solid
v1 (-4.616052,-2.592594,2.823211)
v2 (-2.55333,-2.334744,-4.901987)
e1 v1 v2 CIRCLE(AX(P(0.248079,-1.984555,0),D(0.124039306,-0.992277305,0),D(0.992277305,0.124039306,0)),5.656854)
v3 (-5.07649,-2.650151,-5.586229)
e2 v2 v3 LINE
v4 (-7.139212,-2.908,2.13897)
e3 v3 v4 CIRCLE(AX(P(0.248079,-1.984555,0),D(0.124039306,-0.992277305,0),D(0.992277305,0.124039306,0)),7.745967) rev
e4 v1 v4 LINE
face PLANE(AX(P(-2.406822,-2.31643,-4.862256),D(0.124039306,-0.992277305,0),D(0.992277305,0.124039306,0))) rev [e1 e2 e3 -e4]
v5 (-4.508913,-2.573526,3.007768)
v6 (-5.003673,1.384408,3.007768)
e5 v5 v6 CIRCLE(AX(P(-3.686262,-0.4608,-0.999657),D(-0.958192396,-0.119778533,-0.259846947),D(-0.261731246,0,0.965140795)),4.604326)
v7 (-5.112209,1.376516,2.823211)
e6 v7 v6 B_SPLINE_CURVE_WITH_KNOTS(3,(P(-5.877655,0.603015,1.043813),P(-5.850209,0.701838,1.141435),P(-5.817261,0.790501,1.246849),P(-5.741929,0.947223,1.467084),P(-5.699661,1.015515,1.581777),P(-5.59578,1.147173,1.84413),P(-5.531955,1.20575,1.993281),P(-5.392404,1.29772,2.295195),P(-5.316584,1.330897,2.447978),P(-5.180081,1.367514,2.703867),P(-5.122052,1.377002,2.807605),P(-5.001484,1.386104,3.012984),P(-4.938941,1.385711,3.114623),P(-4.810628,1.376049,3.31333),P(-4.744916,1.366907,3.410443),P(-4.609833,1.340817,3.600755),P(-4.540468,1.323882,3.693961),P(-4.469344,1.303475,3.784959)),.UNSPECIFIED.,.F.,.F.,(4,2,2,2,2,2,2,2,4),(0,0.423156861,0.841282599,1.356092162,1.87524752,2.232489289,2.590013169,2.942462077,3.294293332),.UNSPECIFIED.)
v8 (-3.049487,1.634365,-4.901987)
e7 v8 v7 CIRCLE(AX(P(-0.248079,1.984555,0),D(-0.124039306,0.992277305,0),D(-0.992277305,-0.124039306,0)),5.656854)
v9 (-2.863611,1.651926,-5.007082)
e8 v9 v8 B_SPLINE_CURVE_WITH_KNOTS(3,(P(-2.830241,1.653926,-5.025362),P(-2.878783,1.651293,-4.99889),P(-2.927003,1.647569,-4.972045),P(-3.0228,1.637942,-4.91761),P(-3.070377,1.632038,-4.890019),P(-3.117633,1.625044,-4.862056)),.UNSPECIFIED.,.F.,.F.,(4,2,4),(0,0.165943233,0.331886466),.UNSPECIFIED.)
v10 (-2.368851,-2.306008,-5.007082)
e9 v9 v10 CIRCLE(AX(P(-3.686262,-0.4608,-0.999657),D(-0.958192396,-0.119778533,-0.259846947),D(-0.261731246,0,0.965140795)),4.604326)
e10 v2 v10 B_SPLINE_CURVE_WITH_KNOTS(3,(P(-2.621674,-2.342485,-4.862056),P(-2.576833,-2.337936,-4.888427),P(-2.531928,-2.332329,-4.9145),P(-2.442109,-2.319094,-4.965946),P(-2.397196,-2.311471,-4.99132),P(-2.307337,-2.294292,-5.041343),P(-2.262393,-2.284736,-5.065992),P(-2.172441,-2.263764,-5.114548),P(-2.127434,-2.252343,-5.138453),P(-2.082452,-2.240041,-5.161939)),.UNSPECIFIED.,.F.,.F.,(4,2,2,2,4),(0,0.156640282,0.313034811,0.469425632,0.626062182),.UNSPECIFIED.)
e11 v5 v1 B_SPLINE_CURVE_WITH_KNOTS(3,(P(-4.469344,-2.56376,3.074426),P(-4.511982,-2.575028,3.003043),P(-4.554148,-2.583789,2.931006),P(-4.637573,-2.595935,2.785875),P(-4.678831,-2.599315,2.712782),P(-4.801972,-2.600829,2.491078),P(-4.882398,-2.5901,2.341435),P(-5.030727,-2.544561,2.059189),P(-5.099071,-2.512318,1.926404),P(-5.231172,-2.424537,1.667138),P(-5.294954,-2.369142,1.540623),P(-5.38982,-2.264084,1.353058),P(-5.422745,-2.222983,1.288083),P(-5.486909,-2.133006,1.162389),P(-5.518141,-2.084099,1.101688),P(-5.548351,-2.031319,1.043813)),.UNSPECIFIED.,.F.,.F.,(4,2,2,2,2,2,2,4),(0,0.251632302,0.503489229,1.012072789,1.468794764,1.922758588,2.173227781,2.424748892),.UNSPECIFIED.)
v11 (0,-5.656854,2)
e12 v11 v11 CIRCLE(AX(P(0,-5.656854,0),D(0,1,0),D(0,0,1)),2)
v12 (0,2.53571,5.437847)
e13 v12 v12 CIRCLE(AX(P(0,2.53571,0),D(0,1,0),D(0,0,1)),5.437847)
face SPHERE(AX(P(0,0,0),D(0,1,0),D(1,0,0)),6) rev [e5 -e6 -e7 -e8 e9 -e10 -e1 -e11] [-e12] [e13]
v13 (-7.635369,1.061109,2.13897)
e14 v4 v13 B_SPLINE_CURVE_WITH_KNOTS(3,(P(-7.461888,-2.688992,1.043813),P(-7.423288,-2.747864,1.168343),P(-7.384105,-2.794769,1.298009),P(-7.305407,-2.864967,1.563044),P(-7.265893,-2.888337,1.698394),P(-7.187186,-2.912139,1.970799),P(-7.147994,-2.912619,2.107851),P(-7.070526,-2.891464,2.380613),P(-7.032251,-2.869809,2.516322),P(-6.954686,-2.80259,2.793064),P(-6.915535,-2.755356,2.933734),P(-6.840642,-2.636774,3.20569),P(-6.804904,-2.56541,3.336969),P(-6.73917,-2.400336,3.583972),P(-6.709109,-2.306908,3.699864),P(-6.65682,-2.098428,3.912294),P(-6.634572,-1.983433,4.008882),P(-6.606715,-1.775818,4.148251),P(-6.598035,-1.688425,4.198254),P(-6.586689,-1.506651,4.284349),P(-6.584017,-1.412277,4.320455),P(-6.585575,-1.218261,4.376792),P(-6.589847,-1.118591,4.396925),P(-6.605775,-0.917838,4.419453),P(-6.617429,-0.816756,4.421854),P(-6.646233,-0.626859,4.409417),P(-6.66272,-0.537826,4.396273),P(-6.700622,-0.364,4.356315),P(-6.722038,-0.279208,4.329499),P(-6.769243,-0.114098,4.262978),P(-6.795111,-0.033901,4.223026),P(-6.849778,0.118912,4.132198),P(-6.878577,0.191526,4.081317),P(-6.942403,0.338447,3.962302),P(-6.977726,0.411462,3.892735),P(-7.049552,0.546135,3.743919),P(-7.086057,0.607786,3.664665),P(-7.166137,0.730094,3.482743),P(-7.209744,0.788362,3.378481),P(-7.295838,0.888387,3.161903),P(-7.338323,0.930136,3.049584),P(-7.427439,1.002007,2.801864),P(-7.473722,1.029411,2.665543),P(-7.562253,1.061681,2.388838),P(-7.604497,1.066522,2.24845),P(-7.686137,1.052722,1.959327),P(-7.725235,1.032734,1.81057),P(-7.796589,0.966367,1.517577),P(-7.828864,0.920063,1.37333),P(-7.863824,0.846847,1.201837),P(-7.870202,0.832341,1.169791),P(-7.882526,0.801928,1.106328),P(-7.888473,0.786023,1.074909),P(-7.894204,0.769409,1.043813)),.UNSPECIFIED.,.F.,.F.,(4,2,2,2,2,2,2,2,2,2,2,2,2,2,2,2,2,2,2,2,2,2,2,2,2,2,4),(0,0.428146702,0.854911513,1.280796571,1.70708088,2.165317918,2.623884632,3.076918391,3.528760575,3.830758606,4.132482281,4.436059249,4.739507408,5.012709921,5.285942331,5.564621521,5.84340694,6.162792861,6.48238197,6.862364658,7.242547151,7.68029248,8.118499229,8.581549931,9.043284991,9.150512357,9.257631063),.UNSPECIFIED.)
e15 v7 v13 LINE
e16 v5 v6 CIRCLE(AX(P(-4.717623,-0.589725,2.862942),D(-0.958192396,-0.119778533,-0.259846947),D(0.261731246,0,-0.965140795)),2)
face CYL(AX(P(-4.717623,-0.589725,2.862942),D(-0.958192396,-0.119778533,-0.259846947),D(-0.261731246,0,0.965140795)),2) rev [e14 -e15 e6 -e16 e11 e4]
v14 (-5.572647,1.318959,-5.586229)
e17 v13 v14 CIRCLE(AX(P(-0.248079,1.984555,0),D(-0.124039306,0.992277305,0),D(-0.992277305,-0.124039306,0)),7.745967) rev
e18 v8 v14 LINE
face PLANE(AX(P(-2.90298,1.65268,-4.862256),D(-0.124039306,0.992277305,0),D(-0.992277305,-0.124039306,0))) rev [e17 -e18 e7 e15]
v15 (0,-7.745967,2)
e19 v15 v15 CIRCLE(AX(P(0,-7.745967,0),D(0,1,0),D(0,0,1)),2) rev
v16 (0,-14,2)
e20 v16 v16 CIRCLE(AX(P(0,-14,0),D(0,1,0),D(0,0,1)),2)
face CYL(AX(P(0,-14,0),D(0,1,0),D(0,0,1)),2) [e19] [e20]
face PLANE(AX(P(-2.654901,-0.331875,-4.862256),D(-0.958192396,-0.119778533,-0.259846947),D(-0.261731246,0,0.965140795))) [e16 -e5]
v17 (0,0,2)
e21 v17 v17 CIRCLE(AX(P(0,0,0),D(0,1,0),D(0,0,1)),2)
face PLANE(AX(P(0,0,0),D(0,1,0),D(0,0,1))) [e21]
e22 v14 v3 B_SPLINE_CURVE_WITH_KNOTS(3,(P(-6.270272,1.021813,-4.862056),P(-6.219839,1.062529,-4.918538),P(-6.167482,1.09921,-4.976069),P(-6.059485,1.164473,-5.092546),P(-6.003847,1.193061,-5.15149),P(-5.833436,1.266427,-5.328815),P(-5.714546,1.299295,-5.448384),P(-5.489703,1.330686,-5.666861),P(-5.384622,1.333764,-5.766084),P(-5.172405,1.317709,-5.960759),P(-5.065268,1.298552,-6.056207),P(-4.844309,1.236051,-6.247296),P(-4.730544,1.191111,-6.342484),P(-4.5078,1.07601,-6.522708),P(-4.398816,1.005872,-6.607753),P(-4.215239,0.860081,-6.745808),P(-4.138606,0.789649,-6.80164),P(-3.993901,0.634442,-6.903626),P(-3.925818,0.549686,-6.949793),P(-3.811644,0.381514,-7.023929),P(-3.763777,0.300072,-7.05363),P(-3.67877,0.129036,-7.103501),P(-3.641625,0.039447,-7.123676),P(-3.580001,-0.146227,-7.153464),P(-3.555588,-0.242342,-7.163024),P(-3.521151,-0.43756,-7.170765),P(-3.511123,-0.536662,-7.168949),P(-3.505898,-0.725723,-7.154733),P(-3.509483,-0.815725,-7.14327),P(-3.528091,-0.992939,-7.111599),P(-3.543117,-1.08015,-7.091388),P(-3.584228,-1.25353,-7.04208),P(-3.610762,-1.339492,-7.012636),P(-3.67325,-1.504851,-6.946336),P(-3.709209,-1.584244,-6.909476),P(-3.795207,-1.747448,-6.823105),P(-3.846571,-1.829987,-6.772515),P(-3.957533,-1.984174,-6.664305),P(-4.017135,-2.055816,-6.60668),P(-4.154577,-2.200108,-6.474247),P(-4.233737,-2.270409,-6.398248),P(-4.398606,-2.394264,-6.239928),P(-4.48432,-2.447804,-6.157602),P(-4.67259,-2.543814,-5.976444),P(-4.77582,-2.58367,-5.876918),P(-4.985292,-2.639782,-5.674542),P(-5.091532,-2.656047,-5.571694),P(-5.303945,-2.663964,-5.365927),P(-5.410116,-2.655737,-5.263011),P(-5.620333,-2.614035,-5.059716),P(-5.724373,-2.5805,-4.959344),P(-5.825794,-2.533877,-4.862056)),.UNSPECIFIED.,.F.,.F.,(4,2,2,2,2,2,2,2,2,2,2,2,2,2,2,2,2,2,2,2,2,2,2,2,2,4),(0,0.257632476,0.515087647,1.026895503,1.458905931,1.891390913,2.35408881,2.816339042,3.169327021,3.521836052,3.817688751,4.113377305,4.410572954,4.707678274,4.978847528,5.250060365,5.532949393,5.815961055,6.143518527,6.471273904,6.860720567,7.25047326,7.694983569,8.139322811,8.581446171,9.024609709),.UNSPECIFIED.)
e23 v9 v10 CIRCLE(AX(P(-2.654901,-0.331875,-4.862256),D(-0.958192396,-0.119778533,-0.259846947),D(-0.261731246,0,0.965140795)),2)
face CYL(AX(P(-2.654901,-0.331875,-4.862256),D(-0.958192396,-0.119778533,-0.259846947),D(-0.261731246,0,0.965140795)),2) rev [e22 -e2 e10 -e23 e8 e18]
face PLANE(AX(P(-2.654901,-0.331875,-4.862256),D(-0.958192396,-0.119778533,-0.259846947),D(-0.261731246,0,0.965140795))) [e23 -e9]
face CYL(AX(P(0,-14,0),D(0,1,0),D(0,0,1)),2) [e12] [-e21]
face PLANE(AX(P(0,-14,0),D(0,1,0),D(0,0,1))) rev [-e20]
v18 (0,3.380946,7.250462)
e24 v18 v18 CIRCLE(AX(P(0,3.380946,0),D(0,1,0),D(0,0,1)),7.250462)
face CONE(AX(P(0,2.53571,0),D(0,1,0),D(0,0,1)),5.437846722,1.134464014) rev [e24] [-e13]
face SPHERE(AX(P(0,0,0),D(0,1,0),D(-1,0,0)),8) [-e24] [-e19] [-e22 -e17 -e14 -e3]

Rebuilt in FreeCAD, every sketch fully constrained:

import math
import FreeCAD as App
import Part
import Sketcher
Q = App.Units.Quantity

doc = App.newDocument("Part")
params = doc.addObject("Spreadsheet::Sheet", "Params")
for row, (alias, value) in enumerate([
    ("sketch1_radius", "8 mm"),
    ("sketch1_radius2", "6 mm"),
    ("revolution_angle", "360 deg"),
    ("sketch2_diameter", "4 mm"),
    ("pad1_length", "14 mm"),
    ("sketch3_radius", "2 mm"),
    ("sketch3_width", "8 mm"),
    ("pocket1_length", "7 mm"),
], start=1):
    params.set(f"A{row}", alias)
    params.set(f"B{row}", "=" + value)
    params.setAlias(f"B{row}", alias)

body = doc.addObject("PartDesign::Body", "Body")

sketch1 = body.newObject("Sketcher::SketchObject", "Sketch")
sketch1.AttachmentSupport = (doc.getObject("XY_Plane"), [""])
sketch1.MapMode = "FlatFace"
sketch1.addGeometry([
    Part.LineSegment(App.Vector(-5.437847, 2.53571, 0), App.Vector(-7.250462, 3.380946, 0)),
    Part.ArcOfCircle(Part.Circle(App.Vector(0, 0, 0), App.Vector(0, 0, 1), 8), math.radians(155), math.radians(270)),
    Part.LineSegment(App.Vector(0, -8, 0), App.Vector(0, -6, 0)),
    Part.ArcOfCircle(Part.Circle(App.Vector(0, 0, 0), App.Vector(0, 0, 1), 6), math.radians(155), math.radians(270)),
], False)
sketch1.addConstraint([
    Sketcher.Constraint("Coincident", 0, 2, 1, 1),
    Sketcher.Constraint("Coincident", 1, 2, 2, 1),
    Sketcher.Constraint("Coincident", 2, 2, 3, 2),
    Sketcher.Constraint("Coincident", 3, 1, 0, 1),
    Sketcher.Constraint("Vertical", 2),
    Sketcher.Constraint("Coincident", 1, 3, -1, 1),
    Sketcher.Constraint("Coincident", 3, 3, -1, 1),
    Sketcher.Constraint("PointOnObject", 1, 2, -2),
    Sketcher.Constraint("Radius", 1, Q("8 mm")),
    Sketcher.Constraint("Radius", 3, Q("6 mm")),
    Sketcher.Constraint("Angle", 0, Q("155 deg")),
    Sketcher.Constraint("DistanceY", -1, 1, 3, 1, Q("2.53571 mm")),
])
sketch1.setExpression("Constraints[8]", "Params.sketch1_radius")
sketch1.setExpression("Constraints[9]", "Params.sketch1_radius2")
revolution = body.newObject("PartDesign::Revolution", "Revolution")
revolution.Profile = sketch1
revolution.ReferenceAxis = (sketch1, ["V_Axis"])
revolution.setExpression("Angle", "Params.revolution_angle")

sketch2 = body.newObject("Sketcher::SketchObject", "Sketch001")
sketch2.AttachmentSupport = (doc.getObject("XZ_Plane"), [""])
sketch2.MapMode = "FlatFace"
sketch2.addGeometry(Part.Circle(App.Vector(0, 0, 0), App.Vector(0, 0, 1), 2), False)
sketch2.addConstraint([
    Sketcher.Constraint("Coincident", 0, 3, -1, 1),
    Sketcher.Constraint("Diameter", 0, Q("4 mm")),
])
sketch2.setExpression("Constraints[1]", "Params.sketch2_diameter")
pad1 = body.newObject("PartDesign::Pad", "Pad")
pad1.Profile = sketch2
pad1.setExpression("Length", "Params.pad1_length")

sketch3 = body.newObject("Sketcher::SketchObject", "Sketch002")
sketch3.Placement = App.Placement(App.Vector(-10.393609, -1.29925, -2.818586), App.Rotation(App.Vector(-0.257840229, -0.032231235, 0.965649814), App.Vector(-0.124039306, 0.992277305, 0), App.Vector(-0.958192396, -0.119778533, -0.259846947), "ZXY"))
sketch3.addGeometry([
    Part.LineSegment(App.Vector(4, 2, 0), App.Vector(-4, 2, 0)),
    Part.ArcOfCircle(Part.Circle(App.Vector(-4, 0, 0), App.Vector(0, 0, 1), 2), math.radians(90), math.radians(270)),
    Part.LineSegment(App.Vector(-4, -2, 0), App.Vector(4, -2, 0)),
    Part.ArcOfCircle(Part.Circle(App.Vector(4, 0, 0), App.Vector(0, 0, 1), 2), math.radians(-90), math.radians(90)),
], False)
sketch3.addConstraint([
    Sketcher.Constraint("Tangent", 0, 2, 1, 1),
    Sketcher.Constraint("Tangent", 1, 2, 2, 1),
    Sketcher.Constraint("Tangent", 2, 2, 3, 1),
    Sketcher.Constraint("Tangent", 3, 2, 0, 1),
    Sketcher.Constraint("Horizontal", 0),
    Sketcher.Constraint("Horizontal", 2),
    Sketcher.Constraint("Symmetric", 1, 3, 3, 3, -1, 1),
    Sketcher.Constraint("Radius", 1, Q("2 mm")),
    Sketcher.Constraint("DistanceX", 0, 2, 0, 1, Q("8 mm")),
])
sketch3.setExpression("Constraints[7]", "Params.sketch3_radius")
sketch3.setExpression("Constraints[8]", "Params.sketch3_width")
pocket1 = body.newObject("PartDesign::Pocket", "Pocket")
pocket1.Profile = sketch3
pocket1.setExpression("Length", "Params.pocket1_length")

doc.recompute()
